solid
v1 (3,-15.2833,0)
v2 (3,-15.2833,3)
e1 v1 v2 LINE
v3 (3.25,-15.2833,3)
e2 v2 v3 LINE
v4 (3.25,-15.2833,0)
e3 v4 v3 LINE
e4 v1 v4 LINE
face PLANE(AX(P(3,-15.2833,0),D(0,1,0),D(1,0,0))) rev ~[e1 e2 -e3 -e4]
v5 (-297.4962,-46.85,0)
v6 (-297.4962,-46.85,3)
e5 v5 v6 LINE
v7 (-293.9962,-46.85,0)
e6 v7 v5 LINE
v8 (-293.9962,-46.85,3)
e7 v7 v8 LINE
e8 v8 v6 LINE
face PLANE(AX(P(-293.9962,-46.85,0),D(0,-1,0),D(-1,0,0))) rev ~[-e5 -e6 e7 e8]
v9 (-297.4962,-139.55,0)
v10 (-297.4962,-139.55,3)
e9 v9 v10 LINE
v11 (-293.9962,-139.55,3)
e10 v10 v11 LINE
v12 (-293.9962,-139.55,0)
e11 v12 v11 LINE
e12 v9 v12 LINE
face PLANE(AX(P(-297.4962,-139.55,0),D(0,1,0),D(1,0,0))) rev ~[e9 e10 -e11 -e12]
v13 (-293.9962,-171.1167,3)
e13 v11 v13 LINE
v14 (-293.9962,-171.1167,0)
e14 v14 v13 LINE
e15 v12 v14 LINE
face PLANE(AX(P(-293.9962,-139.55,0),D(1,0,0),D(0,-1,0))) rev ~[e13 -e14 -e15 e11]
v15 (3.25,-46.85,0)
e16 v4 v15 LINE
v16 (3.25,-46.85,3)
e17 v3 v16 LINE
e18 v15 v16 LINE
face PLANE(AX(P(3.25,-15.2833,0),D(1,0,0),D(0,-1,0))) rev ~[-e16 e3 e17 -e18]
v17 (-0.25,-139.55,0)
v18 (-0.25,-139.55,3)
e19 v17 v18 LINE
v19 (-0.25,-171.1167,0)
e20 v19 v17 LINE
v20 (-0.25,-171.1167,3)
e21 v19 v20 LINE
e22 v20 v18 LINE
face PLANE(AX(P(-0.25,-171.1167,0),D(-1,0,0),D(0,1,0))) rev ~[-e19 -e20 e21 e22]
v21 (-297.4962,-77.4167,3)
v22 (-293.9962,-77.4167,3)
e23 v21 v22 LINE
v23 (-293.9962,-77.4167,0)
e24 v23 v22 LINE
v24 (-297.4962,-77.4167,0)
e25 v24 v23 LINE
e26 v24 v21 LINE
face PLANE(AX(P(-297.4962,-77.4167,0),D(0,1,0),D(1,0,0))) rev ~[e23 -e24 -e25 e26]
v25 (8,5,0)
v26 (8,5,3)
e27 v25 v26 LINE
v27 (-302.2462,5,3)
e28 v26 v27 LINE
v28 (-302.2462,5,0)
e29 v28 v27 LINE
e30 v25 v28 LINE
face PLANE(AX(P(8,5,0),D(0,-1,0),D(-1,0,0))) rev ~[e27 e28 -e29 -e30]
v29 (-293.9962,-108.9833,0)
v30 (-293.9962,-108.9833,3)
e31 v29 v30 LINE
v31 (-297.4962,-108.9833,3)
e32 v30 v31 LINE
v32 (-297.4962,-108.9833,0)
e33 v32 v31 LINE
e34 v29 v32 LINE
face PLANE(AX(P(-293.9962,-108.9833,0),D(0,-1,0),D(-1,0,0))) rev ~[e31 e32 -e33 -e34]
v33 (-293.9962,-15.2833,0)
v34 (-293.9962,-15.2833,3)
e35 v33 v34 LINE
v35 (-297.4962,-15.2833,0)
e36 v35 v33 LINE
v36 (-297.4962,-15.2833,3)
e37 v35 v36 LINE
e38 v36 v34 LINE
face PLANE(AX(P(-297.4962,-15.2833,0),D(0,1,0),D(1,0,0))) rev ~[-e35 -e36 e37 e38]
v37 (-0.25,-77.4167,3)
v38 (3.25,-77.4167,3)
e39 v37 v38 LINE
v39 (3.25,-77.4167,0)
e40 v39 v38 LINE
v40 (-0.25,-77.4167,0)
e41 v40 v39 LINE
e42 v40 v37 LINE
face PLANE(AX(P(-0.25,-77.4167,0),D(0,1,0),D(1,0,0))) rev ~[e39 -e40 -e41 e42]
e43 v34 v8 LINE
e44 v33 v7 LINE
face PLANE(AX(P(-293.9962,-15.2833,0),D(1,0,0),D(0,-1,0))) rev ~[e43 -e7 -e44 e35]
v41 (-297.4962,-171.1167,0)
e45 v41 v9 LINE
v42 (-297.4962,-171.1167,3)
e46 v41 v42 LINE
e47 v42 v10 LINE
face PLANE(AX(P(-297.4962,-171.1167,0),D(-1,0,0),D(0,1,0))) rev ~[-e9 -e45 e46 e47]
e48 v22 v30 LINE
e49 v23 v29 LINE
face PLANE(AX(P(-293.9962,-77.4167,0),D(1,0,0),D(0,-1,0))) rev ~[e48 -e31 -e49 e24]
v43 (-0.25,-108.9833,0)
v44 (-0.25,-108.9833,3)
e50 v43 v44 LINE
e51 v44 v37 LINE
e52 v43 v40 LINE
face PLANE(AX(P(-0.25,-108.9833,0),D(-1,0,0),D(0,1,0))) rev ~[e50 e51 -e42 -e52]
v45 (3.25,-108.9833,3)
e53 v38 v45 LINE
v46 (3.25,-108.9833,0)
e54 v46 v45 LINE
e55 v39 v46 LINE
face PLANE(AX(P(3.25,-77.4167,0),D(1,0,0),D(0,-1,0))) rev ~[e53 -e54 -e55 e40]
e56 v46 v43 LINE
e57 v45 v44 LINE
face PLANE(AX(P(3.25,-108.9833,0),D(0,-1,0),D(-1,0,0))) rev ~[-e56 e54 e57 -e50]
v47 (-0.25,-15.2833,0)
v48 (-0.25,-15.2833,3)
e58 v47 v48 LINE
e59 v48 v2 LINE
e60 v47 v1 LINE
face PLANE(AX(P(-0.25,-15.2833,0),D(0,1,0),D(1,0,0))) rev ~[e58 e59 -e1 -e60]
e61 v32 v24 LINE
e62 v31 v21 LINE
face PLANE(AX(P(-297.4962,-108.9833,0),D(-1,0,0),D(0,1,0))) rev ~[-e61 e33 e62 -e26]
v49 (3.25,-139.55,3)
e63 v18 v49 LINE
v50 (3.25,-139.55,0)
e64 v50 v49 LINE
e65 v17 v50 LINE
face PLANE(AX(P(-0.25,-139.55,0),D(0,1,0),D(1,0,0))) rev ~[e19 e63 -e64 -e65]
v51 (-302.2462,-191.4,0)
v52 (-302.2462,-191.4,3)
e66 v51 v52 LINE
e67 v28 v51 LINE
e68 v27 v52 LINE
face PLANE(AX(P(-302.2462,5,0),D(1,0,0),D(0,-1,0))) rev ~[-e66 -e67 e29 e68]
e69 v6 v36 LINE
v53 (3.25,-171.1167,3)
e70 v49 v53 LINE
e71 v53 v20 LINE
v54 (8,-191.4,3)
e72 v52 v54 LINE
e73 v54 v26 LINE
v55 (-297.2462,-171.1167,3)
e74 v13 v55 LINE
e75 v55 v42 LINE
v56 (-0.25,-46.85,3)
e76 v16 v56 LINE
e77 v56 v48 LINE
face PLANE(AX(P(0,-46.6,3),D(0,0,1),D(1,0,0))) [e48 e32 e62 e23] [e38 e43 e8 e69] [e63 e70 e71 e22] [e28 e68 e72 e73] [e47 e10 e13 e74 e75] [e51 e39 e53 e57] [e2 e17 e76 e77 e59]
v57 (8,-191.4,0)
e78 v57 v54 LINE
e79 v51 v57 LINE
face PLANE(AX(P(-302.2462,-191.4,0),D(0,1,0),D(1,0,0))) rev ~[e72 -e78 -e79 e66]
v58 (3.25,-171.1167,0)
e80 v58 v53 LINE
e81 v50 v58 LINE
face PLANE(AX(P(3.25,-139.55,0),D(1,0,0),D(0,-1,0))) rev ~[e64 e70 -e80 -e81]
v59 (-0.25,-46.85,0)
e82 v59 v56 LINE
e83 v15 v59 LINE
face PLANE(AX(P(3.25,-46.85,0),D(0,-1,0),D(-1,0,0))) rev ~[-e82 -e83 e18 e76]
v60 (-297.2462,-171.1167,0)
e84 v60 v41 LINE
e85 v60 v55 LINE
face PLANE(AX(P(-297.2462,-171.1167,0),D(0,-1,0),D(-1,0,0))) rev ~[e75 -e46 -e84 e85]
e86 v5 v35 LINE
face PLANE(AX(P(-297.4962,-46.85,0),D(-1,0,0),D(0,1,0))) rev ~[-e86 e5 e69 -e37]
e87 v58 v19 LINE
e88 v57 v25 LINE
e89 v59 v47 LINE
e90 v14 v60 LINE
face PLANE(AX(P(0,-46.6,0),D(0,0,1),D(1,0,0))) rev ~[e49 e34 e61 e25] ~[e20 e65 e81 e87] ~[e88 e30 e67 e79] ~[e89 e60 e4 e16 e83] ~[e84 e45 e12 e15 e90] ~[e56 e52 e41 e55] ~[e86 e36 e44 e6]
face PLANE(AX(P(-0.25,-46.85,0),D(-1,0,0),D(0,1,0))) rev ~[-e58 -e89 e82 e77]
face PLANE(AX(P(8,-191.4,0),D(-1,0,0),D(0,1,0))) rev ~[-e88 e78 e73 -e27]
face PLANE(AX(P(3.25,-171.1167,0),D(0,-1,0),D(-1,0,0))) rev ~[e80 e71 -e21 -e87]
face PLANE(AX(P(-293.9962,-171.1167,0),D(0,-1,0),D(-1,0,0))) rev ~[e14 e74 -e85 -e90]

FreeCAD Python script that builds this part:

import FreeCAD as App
import Part
import Sketcher

doc = App.newDocument("Part")
params = doc.addObject("Spreadsheet::Sheet", "Params")
for row, (alias, value) in enumerate([
    ("sketch1_width", "3.5 mm"),
    ("sketch1_height", "196.4 mm"),
    ("pad1_length", "3 mm"),
], start=1):
    params.set(f"A{row}", alias)
    params.set(f"B{row}", "=" + value)
    params.setAlias(f"B{row}", alias)

body = doc.addObject("PartDesign::Body", "Body")

sketch1 = doc.addObject("Sketcher::SketchObject", "Sketch")
body.addObject(sketch1)
sketch1.AttachmentSupport = (doc.XY_Plane, [""])
sketch1.MapMode = "FlatFace"
sketch1.addGeometry([
    Part.LineSegment(App.Vector(8, -191.4, 0), App.Vector(8, 5, 0)),
    Part.LineSegment(App.Vector(8, 5, 0), App.Vector(-302.2462, 5, 0)),
    Part.LineSegment(App.Vector(-302.2462, 5, 0), App.Vector(-302.2462, -191.4, 0)),
    Part.LineSegment(App.Vector(-302.2462, -191.4, 0), App.Vector(8, -191.4, 0)),
    Part.LineSegment(App.Vector(-293.9962, -171.1167, 0), App.Vector(-297.4962, -171.1167, 0)),
    Part.LineSegment(App.Vector(-297.4962, -171.1167, 0), App.Vector(-297.4962, -139.55, 0)),
    Part.LineSegment(App.Vector(-297.4962, -139.55, 0), App.Vector(-293.9962, -139.55, 0)),
    Part.LineSegment(App.Vector(-293.9962, -139.55, 0), App.Vector(-293.9962, -171.1167, 0)),
    Part.LineSegment(App.Vector(-0.25, -139.55, 0), App.Vector(3.25, -139.55, 0)),
    Part.LineSegment(App.Vector(3.25, -139.55, 0), App.Vector(3.25, -171.1167, 0)),
    Part.LineSegment(App.Vector(3.25, -171.1167, 0), App.Vector(-0.25, -171.1167, 0)),
    Part.LineSegment(App.Vector(-0.25, -171.1167, 0), App.Vector(-0.25, -139.55, 0)),
    Part.LineSegment(App.Vector(-297.4962, -77.4167, 0), App.Vector(-293.9962, -77.4167, 0)),
    Part.LineSegment(App.Vector(-293.9962, -77.4167, 0), App.Vector(-293.9962, -108.9833, 0)),
    Part.LineSegment(App.Vector(-293.9962, -108.9833, 0), App.Vector(-297.4962, -108.9833, 0)),
    Part.LineSegment(App.Vector(-297.4962, -108.9833, 0), App.Vector(-297.4962, -77.4167, 0)),
    Part.LineSegment(App.Vector(-297.4962, -15.2833, 0), App.Vector(-293.9962, -15.2833, 0)),
    Part.LineSegment(App.Vector(-293.9962, -15.2833, 0), App.Vector(-293.9962, -46.85, 0)),
    Part.LineSegment(App.Vector(-293.9962, -46.85, 0), App.Vector(-297.4962, -46.85, 0)),
    Part.LineSegment(App.Vector(-297.4962, -46.85, 0), App.Vector(-297.4962, -15.2833, 0)),
    Part.LineSegment(App.Vector(-0.25, -77.4167, 0), App.Vector(3.25, -77.4167, 0)),
    Part.LineSegment(App.Vector(3.25, -77.4167, 0), App.Vector(3.25, -108.9833, 0)),
    Part.LineSegment(App.Vector(3.25, -108.9833, 0), App.Vector(-0.25, -108.9833, 0)),
    Part.LineSegment(App.Vector(-0.25, -108.9833, 0), App.Vector(-0.25, -77.4167, 0)),
    Part.LineSegment(App.Vector(-0.25, -15.2833, 0), App.Vector(3.25, -15.2833, 0)),
    Part.LineSegment(App.Vector(3.25, -15.2833, 0), App.Vector(3.25, -46.85, 0)),
    Part.LineSegment(App.Vector(3.25, -46.85, 0), App.Vector(-0.25, -46.85, 0)),
    Part.LineSegment(App.Vector(-0.25, -46.85, 0), App.Vector(-0.25, -15.2833, 0)),
], False)
sketch1.addConstraint([
    Sketcher.Constraint("Coincident", 0, 2, 1, 1),
    Sketcher.Constraint("Coincident", 1, 2, 2, 1),
    Sketcher.Constraint("Coincident", 2, 2, 3, 1),
    Sketcher.Constraint("Coincident", 3, 2, 0, 1),
    Sketcher.Constraint("Coincident", 4, 2, 5, 1),
    Sketcher.Constraint("Coincident", 5, 2, 6, 1),
    Sketcher.Constraint("Coincident", 6, 2, 7, 1),
    Sketcher.Constraint("Coincident", 7, 2, 4, 1),
    Sketcher.Constraint("Coincident", 8, 2, 9, 1),
    Sketcher.Constraint("Coincident", 9, 2, 10, 1),
    Sketcher.Constraint("Coincident", 10, 2, 11, 1),
    Sketcher.Constraint("Coincident", 11, 2, 8, 1),
    Sketcher.Constraint("Coincident", 12, 2, 13, 1),
    Sketcher.Constraint("Coincident", 13, 2, 14, 1),
    Sketcher.Constraint("Coincident", 14, 2, 15, 1),
    Sketcher.Constraint("Coincident", 15, 2, 12, 1),
    Sketcher.Constraint("Coincident", 16, 2, 17, 1),
    Sketcher.Constraint("Coincident", 17, 2, 18, 1),
    Sketcher.Constraint("Coincident", 18, 2, 19, 1),
    Sketcher.Constraint("Coincident", 19, 2, 16, 1),
    Sketcher.Constraint("Coincident", 20, 2, 21, 1),
    Sketcher.Constraint("Coincident", 21, 2, 22, 1),
    Sketcher.Constraint("Coincident", 22, 2, 23, 1),
    Sketcher.Constraint("Coincident", 23, 2, 20, 1),
    Sketcher.Constraint("Coincident", 24, 2, 25, 1),
    Sketcher.Constraint("Coincident", 25, 2, 26, 1),
    Sketcher.Constraint("Coincident", 26, 2, 27, 1),
    Sketcher.Constraint("Coincident", 27, 2, 24, 1),
    Sketcher.Constraint("Vertical", 0),
    Sketcher.Constraint("Horizontal", 1),
    Sketcher.Constraint("Vertical", 2),
    Sketcher.Constraint("Horizontal", 3),
    Sketcher.Constraint("Horizontal", 4),
    Sketcher.Constraint("Vertical", 5),
    Sketcher.Constraint("Horizontal", 6),
    Sketcher.Constraint("Vertical", 7),
    Sketcher.Constraint("Horizontal", 8),
    Sketcher.Constraint("Vertical", 9),
    Sketcher.Constraint("Horizontal", 10),
    Sketcher.Constraint("Vertical", 11),
    Sketcher.Constraint("Horizontal", 12),
    Sketcher.Constraint("Vertical", 13),
    Sketcher.Constraint("Horizontal", 14),
    Sketcher.Constraint("Vertical", 15),
    Sketcher.Constraint("Horizontal", 16),
    Sketcher.Constraint("Vertical", 17),
    Sketcher.Constraint("Horizontal", 18),
    Sketcher.Constraint("Vertical", 19),
    Sketcher.Constraint("Horizontal", 20),
    Sketcher.Constraint("Vertical", 21),
    Sketcher.Constraint("Horizontal", 22),
    Sketcher.Constraint("Vertical", 23),
    Sketcher.Constraint("Horizontal", 24),
    Sketcher.Constraint("Vertical", 25),
    Sketcher.Constraint("Horizontal", 26),
    Sketcher.Constraint("Vertical", 27),
    Sketcher.Constraint("Horizontal", 6, 2, 8, 2),
    Sketcher.Constraint("Horizontal", 7, 2, 9, 2),
    Sketcher.Constraint("Horizontal", 15, 2, 20, 2),
    Sketcher.Constraint("Horizontal", 14, 2, 21, 2),
    Sketcher.Constraint("Horizontal", 19, 2, 24, 2),
    Sketcher.Constraint("Horizontal", 18, 2, 25, 2),
    Sketcher.Constraint("Vertical", 7, 2, 12, 2),
    Sketcher.Constraint("Vertical", 5, 2, 14, 2),
    Sketcher.Constraint("Vertical", 13, 2, 16, 2),
    Sketcher.Constraint("Vertical", 15, 2, 18, 2),
    Sketcher.Constraint("Vertical", 9, 2, 20, 2),
    Sketcher.Constraint("Vertical", 11, 2, 22, 2),
    Sketcher.Constraint("Vertical", 21, 2, 24, 2),
    Sketcher.Constraint("Vertical", 23, 2, 26, 2),
    Sketcher.Constraint("Equal", 6, 8),
    Sketcher.Constraint("Equal", 11, 13),
    Sketcher.Constraint("Equal", 15, 17),
    Sketcher.Constraint("DistanceY", -1, 1, 0, 2, 5.0),
    Sketcher.Constraint("DistanceX", 10, 2, -1, 1, 0.25),
    Sketcher.Constraint("DistanceX", 4, 2, 4, 1, 3.5),
    Sketcher.Constraint("DistanceY", 0, 1, 0, 2, 196.4),
    Sketcher.Constraint("DistanceX", -1, 1, 0, 2, 8.0),
    Sketcher.Constraint("DistanceY", 7, 2, 12, 2, 93.7),
    Sketcher.Constraint("DistanceY", 13, 2, 16, 2, 93.7),
    Sketcher.Constraint("DistanceY", 5, 2, -1, 1, 139.55),
    Sketcher.Constraint("DistanceY", 17, 2, -1, 1, 46.85),
    Sketcher.Constraint("DistanceX", 2, 2, 4, 2, 4.75),
    Sketcher.Constraint("DistanceX", 1, 2, 1, 1, 310.2462),
])
sketch1.setExpression("Constraints[75]", "Params.sketch1_width")
sketch1.setExpression("Constraints[76]", "Params.sketch1_height")
pad1 = doc.addObject("PartDesign::Pad", "Pad")
body.addObject(pad1)
pad1.Profile = sketch1
pad1.setExpression("Length", "Params.pad1_length")

doc.recompute()
